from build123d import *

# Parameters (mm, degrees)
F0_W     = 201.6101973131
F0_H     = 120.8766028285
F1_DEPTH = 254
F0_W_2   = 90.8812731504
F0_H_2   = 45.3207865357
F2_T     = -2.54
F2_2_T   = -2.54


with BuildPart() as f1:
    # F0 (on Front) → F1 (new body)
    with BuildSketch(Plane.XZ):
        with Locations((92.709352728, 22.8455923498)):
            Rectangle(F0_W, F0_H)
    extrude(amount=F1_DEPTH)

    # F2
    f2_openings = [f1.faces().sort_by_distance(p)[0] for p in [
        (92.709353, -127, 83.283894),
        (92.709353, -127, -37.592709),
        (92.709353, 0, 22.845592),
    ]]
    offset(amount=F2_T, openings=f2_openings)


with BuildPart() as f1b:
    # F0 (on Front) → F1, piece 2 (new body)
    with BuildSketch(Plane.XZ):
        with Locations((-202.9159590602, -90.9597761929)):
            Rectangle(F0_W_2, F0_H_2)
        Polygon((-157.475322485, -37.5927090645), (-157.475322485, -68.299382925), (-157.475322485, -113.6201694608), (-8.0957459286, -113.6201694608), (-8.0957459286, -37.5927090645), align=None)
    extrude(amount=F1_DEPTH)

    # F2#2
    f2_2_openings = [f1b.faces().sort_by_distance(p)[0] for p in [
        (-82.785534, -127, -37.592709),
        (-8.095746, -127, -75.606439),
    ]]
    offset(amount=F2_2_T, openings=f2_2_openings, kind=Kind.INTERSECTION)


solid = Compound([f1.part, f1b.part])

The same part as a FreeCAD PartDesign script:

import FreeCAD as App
import Part
import Sketcher

V = App.Vector
Q = App.Units.Quantity


def faces_at(feature, points):
    """Names of the faces that lie closest to the given points."""
    faces = feature.Shape.Faces
    near = lambda p: min(range(len(faces)), key=lambda i: faces[i].distToShape(Part.Vertex(*p))[0])
    return sorted({f"Face{near(p) + 1}" for p in points})


def add_polygon(sketch, points):
    """Adds a closed chain of lines whose ends are joined by coincident constraints."""
    first, n = sketch.GeometryCount, len(points)
    for a, b in zip(points, points[1:] + points[:1]):
        sketch.addGeometry(Part.LineSegment(App.Vector(*a, 0), App.Vector(*b, 0)), False)
    for i in range(n):
        sketch.addConstraint(Sketcher.Constraint("Coincident", first + i, 2, first + (i + 1) % n, 1))

doc = App.newDocument("Part")
body = doc.addObject("PartDesign::Body", "Body")

sketch1 = body.newObject("Sketcher::SketchObject", "Sketch")
sketch1.AttachmentSupport = (doc.getObject("XZ_Plane"), [""])
sketch1.MapMode = "FlatFace"
add_polygon(sketch1, [(-8.095746, 83.283894), (-8.095746, -37.592709), (193.514451, -37.592709), (193.514451, 83.283894)])
sketch1.addConstraint([
    Sketcher.Constraint("Vertical", 0),
    Sketcher.Constraint("Horizontal", 1),
    Sketcher.Constraint("Vertical", 2),
    Sketcher.Constraint("Horizontal", 3),
    Sketcher.Constraint("DistanceX", 1, 1, 1, 2, Q("201.610197 mm")),
    Sketcher.Constraint("DistanceY", 0, 2, 0, 1, Q("120.876603 mm")),
    Sketcher.Constraint("DistanceY", 0, 2, -1, 1, Q("37.592709 mm")),
    Sketcher.Constraint("DistanceX", -1, 1, 1, 2, Q("193.514451 mm")),
])
pad1 = body.newObject("PartDesign::Pad", "Pad")
pad1.Profile = sketch1
pad1.Length = Q("10 in")
doc.recompute()

thickness = body.newObject("PartDesign::Thickness", "Thickness")
thickness.Base = (pad1, faces_at(pad1, [(92.709, -127, 83.284), (92.709, -127, -37.593), (92.709, 0, 22.846)]))
thickness.Value = Q("0.1 in")
thickness.Reversed = True
thickness.Join = "Arc"
body2 = doc.addObject("PartDesign::Body", "Body001")

sketch2 = body2.newObject("Sketcher::SketchObject", "Sketch001")
sketch2.AttachmentSupport = (doc.getObject("XZ_Plane001"), [""])
sketch2.MapMode = "FlatFace"
add_polygon(sketch2, [(-248.356596, -68.299383), (-248.356596, -113.620169), (-8.095746, -113.620169), (-8.095746, -37.592709), (-157.475322, -37.592709), (-157.475322, -68.299383)])
sketch2.addConstraint([
    Sketcher.Constraint("Vertical", 0),
    Sketcher.Constraint("Horizontal", 1),
    Sketcher.Constraint("Vertical", 2),
    Sketcher.Constraint("Horizontal", 3),
    Sketcher.Constraint("Vertical", 4),
    Sketcher.Constraint("Horizontal", 5),
    Sketcher.Constraint("DistanceX", 1, 1, 1, 2, Q("240.26085 mm")),
    Sketcher.Constraint("DistanceY", 2, 1, 2, 2, Q("76.02746 mm")),
    Sketcher.Constraint("DistanceX", 3, 2, 3, 1, Q("149.379577 mm")),
    Sketcher.Constraint("DistanceY", 0, 2, 0, 1, Q("45.320787 mm")),
    Sketcher.Constraint("DistanceY", 0, 2, -1, 1, Q("113.620169 mm")),
    Sketcher.Constraint("DistanceX", 0, 2, -1, 1, Q("248.356596 mm")),
])
pad2 = body2.newObject("PartDesign::Pad", "Pad001")
pad2.Profile = sketch2
pad2.Length = Q("10 in")
doc.recompute()

thickness2 = body2.newObject("PartDesign::Thickness", "Thickness001")
thickness2.Base = (pad2, faces_at(pad2, [(-82.786, -127, -37.593), (-8.096, -127, -75.606)]))
thickness2.Value = Q("0.1 in")
thickness2.Reversed = True
thickness2.Join = "Intersection"

doc.recompute()
